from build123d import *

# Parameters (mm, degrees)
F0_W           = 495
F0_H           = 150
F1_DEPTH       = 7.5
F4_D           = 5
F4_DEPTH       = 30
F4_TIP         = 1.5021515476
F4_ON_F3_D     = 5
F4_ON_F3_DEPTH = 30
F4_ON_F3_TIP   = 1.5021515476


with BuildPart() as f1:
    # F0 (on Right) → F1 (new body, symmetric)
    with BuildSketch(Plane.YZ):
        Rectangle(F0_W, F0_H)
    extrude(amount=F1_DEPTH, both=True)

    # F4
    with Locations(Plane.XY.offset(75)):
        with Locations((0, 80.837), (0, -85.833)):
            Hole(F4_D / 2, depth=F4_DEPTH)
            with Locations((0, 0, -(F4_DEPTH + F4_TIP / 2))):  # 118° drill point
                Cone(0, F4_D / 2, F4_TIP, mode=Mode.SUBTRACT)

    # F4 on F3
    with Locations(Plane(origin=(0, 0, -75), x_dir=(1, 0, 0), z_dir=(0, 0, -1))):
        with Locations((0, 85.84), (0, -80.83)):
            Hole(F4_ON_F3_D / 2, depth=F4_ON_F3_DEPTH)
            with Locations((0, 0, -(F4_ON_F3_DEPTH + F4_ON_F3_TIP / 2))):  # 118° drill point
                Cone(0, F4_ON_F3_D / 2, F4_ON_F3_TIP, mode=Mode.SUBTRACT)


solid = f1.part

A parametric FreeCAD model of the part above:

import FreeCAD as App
import Part
import Sketcher
from FreeCAD import Vector
Q = App.Units.Quantity


def add_polygon(sketch, points):
    """Adds a closed chain of lines whose ends are joined by coincident constraints."""
    first, n = sketch.GeometryCount, len(points)
    for a, b in zip(points, points[1:] + points[:1]):
        sketch.addGeometry(Part.LineSegment(App.Vector(*a, 0), App.Vector(*b, 0)), False)
    for i in range(n):
        sketch.addConstraint(Sketcher.Constraint("Coincident", first + i, 2, first + (i + 1) % n, 1))

doc = App.newDocument("Part")
body = doc.addObject("PartDesign::Body", "Body")

# Sketch on YZ plane
sketch1 = body.newObject("Sketcher::SketchObject", "Sketch")
sketch1.AttachmentSupport = (doc.getObject("YZ_Plane"), [""])
sketch1.MapMode = "FlatFace"
add_polygon(sketch1, [(-248, 75), (-248, -75), (248, -75), (248, 75)])  # lines 0-3
sketch1.addConstraint(Sketcher.Constraint("Vertical", 0))
sketch1.addConstraint(Sketcher.Constraint("Horizontal", 1))
sketch1.addConstraint(Sketcher.Constraint("Vertical", 2))
sketch1.addConstraint(Sketcher.Constraint("Horizontal", 3))
sketch1.addConstraint(Sketcher.Constraint("Symmetric", 0, 2, 2, 2, -1, 1))
sketch1.addConstraint(Sketcher.Constraint("DistanceX", 1, 1, 1, 2, Q("495 mm")))
sketch1.addConstraint(Sketcher.Constraint("DistanceY", 0, 2, 0, 1, Q("150 mm")))
pad1 = body.newObject("PartDesign::Pad", "Pad")
pad1.Profile = sketch1
pad1.Length = 15
pad1.Midplane = True

# Sketch on XY plane
sketch2 = body.newObject("Sketcher::SketchObject", "Sketch001")
sketch2.AttachmentSupport = (doc.getObject("XY_Plane"), [""])
sketch2.MapMode = "FlatFace"
sketch2.AttachmentOffset = App.Placement(Vector(0, 0, 75), App.Rotation())
sketch2.addGeometry(Part.Circle(Vector(0, 80.8, 0), Vector(0, 0, 1), 2.5), False)
sketch2.addGeometry(Part.Circle(Vector(0, -85.8, 0), Vector(0, 0, 1), 2.5), False)
sketch2.addConstraint(Sketcher.Constraint("Equal", 0, 1))
sketch2.addConstraint(Sketcher.Constraint("PointOnObject", 0, 3, -2))
sketch2.addConstraint(Sketcher.Constraint("PointOnObject", 1, 3, -2))
sketch2.addConstraint(Sketcher.Constraint("Diameter", 0, Q("5 mm")))
sketch2.addConstraint(Sketcher.Constraint("DistanceY", 1, 3, 0, 3, Q("166.67 mm")))
sketch2.addConstraint(Sketcher.Constraint("DistanceY", -1, 1, 0, 3, Q("80.837 mm")))
doc.recompute()
hole = body.newObject("PartDesign::Hole", "Hole")
hole.Profile = sketch2
hole.ThreadType = "None"
hole.Diameter = 5
hole.DepthType = "Dimension"
hole.Depth = 30
hole.DrillPoint = "Angled"
hole.DrillPointAngle = 118

# Sketch on XY plane
sketch3 = body.newObject("Sketcher::SketchObject", "Sketch002")
sketch3.AttachmentSupport = (doc.getObject("XY_Plane"), [""])
sketch3.MapMode = "FlatFace"
sketch3.AttachmentOffset = App.Placement(Vector(0, 0, -75), App.Rotation())
sketch3.addGeometry(Part.Circle(Vector(0, -85.8, 0), Vector(0, 0, 1), 2.5), False)
sketch3.addGeometry(Part.Circle(Vector(0, 80.8, 0), Vector(0, 0, 1), 2.5), False)
sketch3.addConstraint(Sketcher.Constraint("Equal", 0, 1))
sketch3.addConstraint(Sketcher.Constraint("PointOnObject", 0, 3, -2))
sketch3.addConstraint(Sketcher.Constraint("PointOnObject", 1, 3, -2))
sketch3.addConstraint(Sketcher.Constraint("Diameter", 0, Q("5 mm")))
sketch3.addConstraint(Sketcher.Constraint("DistanceY", 0, 3, -1, 1, Q("85.84 mm")))
sketch3.addConstraint(Sketcher.Constraint("DistanceY", -1, 1, 1, 3, Q("80.83 mm")))
doc.recompute()
hole2 = body.newObject("PartDesign::Hole", "Hole001")
hole2.Profile = sketch3
hole2.ThreadType = "None"
hole2.Diameter = 5
hole2.DepthType = "Dimension"
hole2.Depth = 30
hole2.DrillPoint = "Angled"
hole2.DrillPointAngle = 118
hole2.Reversed = True

doc.recompute()
